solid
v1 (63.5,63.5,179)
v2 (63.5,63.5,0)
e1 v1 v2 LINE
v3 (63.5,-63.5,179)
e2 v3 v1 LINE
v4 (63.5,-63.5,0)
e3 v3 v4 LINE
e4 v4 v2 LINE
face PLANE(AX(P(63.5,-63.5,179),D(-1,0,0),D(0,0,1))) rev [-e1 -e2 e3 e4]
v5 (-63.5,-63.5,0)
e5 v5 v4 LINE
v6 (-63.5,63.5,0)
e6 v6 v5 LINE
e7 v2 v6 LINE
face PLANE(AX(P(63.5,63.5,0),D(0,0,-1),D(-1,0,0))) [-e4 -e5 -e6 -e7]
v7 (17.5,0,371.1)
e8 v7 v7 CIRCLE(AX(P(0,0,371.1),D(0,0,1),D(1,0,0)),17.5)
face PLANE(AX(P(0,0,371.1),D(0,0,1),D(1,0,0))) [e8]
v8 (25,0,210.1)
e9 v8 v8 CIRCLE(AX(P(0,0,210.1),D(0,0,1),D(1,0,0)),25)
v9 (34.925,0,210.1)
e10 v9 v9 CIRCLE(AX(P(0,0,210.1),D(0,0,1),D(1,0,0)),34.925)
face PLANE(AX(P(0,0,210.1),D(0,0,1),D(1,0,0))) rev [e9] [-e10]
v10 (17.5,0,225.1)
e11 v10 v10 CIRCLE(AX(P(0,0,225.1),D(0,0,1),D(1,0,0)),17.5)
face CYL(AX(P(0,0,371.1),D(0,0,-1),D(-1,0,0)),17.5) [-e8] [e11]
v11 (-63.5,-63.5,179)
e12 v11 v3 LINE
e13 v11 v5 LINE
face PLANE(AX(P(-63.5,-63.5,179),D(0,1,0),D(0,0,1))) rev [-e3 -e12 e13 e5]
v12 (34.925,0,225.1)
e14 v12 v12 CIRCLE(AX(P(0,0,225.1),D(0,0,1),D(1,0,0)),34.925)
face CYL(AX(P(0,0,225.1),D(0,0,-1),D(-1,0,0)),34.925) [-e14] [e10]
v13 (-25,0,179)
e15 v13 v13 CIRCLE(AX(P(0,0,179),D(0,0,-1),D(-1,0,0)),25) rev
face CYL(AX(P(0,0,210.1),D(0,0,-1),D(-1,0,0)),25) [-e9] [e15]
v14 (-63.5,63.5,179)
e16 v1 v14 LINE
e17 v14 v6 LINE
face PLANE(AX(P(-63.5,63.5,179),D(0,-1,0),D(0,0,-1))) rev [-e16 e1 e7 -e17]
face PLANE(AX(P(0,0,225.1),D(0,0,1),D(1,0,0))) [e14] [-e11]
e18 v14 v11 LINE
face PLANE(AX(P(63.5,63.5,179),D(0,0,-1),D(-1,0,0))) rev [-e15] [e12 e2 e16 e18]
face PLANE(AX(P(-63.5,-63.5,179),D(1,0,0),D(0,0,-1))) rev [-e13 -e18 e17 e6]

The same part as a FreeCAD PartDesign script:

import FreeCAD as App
import Part
import Sketcher

V = App.Vector


def add_polygon(sketch, points):
    """Adds a closed chain of lines whose ends are joined by coincident constraints."""
    first, n = sketch.GeometryCount, len(points)
    for a, b in zip(points, points[1:] + points[:1]):
        sketch.addGeometry(Part.LineSegment(App.Vector(*a, 0), App.Vector(*b, 0)), False)
    for i in range(n):
        sketch.addConstraint(Sketcher.Constraint("Coincident", first + i, 2, first + (i + 1) % n, 1))

doc = App.newDocument("Part")
body = doc.addObject("PartDesign::Body", "Body")

# Sketch on XY plane
sketch1 = body.newObject("Sketcher::SketchObject", "Sketch")
sketch1.AttachmentSupport = (doc.getObject("XY_Plane"), [""])
sketch1.MapMode = "FlatFace"
add_polygon(sketch1, [(-63.5, 63.5), (-63.5, -63.5), (63.5, -63.5), (63.5, 63.5)])  # lines 0-3
sketch1.addConstraint([
    Sketcher.Constraint("Vertical", 0),
    Sketcher.Constraint("Horizontal", 1),
    Sketcher.Constraint("Vertical", 2),
    Sketcher.Constraint("Horizontal", 3),
    Sketcher.Constraint("Symmetric", 0, 2, 2, 2, -1, 1),
    Sketcher.Constraint("Equal", 3, 0),
    Sketcher.Constraint("DistanceX", 1, 1, 1, 2, 127.0),
])
pad1 = body.newObject("PartDesign::Pad", "Pad")
pad1.Profile = sketch1
pad1.Length = 179

# Sketch on XY plane
sketch2 = body.newObject("Sketcher::SketchObject", "Sketch001")
sketch2.AttachmentSupport = (doc.getObject("XY_Plane"), [""])
sketch2.MapMode = "FlatFace"
sketch2.AttachmentOffset = App.Placement(V(0, 0, 179), App.Rotation())
sketch2.addGeometry(Part.Circle(V(0, 0, 0), V(0, 0, 1), 25), False)
sketch2.addConstraint([
    Sketcher.Constraint("Coincident", 0, 3, -1, 1),
    Sketcher.Constraint("Diameter", 0, 50.0),
])
pad2 = body.newObject("PartDesign::Pad", "Pad001")
pad2.Profile = sketch2
pad2.Length = 31.1

# Sketch on XY plane
sketch3 = body.newObject("Sketcher::SketchObject", "Sketch002")
sketch3.AttachmentSupport = (doc.getObject("XY_Plane"), [""])
sketch3.MapMode = "FlatFace"
sketch3.AttachmentOffset = App.Placement(V(0, 0, 210.1), App.Rotation())
sketch3.addGeometry(Part.Circle(V(0, 0, 0), V(0, 0, 1), 34.925), False)
sketch3.addConstraint([
    Sketcher.Constraint("Coincident", 0, 3, -1, 1),
    Sketcher.Constraint("Diameter", 0, 69.85),
])
pad3 = body.newObject("PartDesign::Pad", "Pad002")
pad3.Profile = sketch3
pad3.Length = 15

# Sketch on XY plane
sketch4 = body.newObject("Sketcher::SketchObject", "Sketch003")
sketch4.AttachmentSupport = (doc.getObject("XY_Plane"), [""])
sketch4.MapMode = "FlatFace"
sketch4.AttachmentOffset = App.Placement(V(0, 0, 225.1), App.Rotation())
sketch4.addGeometry(Part.Circle(V(0, 0, 0), V(0, 0, 1), 17.5), False)
sketch4.addConstraint([
    Sketcher.Constraint("Coincident", 0, 3, -1, 1),
    Sketcher.Constraint("Diameter", 0, 35.0),
])
pad4 = body.newObject("PartDesign::Pad", "Pad003")
pad4.Profile = sketch4
pad4.Length = 146

doc.recompute()
